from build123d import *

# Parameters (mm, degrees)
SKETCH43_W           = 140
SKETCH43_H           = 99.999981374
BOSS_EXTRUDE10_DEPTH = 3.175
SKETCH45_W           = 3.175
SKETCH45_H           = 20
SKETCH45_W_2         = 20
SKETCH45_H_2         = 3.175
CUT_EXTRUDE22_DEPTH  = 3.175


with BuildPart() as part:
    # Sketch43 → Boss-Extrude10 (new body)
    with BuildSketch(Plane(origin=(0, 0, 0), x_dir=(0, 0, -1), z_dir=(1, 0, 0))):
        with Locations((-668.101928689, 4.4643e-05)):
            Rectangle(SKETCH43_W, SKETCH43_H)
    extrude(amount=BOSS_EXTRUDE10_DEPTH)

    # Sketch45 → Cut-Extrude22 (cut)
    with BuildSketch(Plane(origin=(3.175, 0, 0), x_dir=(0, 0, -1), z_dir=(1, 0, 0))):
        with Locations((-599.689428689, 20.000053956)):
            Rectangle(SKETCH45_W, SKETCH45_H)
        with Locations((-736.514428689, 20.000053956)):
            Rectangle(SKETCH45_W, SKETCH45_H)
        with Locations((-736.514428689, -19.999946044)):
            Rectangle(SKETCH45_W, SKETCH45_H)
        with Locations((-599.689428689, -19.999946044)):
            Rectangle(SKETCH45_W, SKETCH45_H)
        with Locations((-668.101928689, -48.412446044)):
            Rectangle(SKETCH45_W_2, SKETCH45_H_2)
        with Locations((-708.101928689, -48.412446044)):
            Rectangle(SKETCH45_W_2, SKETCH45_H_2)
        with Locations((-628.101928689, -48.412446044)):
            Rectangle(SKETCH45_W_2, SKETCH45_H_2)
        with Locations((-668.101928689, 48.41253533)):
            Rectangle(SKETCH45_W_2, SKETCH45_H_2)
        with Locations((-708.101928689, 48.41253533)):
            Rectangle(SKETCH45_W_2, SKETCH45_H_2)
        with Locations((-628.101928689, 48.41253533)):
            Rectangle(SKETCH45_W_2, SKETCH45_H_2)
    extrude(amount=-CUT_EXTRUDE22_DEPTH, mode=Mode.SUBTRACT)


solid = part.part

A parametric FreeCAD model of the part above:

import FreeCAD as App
import Part
import Sketcher


def add_polygon(sketch, points):
    """Adds a closed chain of lines whose ends are joined by coincident constraints."""
    first, n = sketch.GeometryCount, len(points)
    for a, b in zip(points, points[1:] + points[:1]):
        sketch.addGeometry(Part.LineSegment(App.Vector(*a, 0), App.Vector(*b, 0)), False)
    for i in range(n):
        sketch.addConstraint(Sketcher.Constraint("Coincident", first + i, 2, first + (i + 1) % n, 1))

doc = App.newDocument("Part")
body = doc.addObject("PartDesign::Body", "Body")

# Sketch on YZ plane
sketch1 = body.newObject("Sketcher::SketchObject", "Sketch")
sketch1.AttachmentSupport = (doc.getObject("YZ_Plane"), [""])
sketch1.MapMode = "FlatFace"
add_polygon(sketch1, [(50.000035, 738.101929), (-49.999946, 738.101929), (-49.999946, 598.101929), (50.000035, 598.101929)])  # lines 0-3
sketch1.addConstraint([
    Sketcher.Constraint("Horizontal", 0),
    Sketcher.Constraint("Vertical", 1),
    Sketcher.Constraint("Horizontal", 2),
    Sketcher.Constraint("Vertical", 3),
    Sketcher.Constraint("DistanceY", 1, 2, 1, 1, 140.0),
    Sketcher.Constraint("DistanceX", 0, 2, 0, 1, 99.999981),
    Sketcher.Constraint("DistanceY", -1, 1, 0, 2, 738.101929),
    Sketcher.Constraint("DistanceX", 0, 2, -1, 1, 49.999946),
])
pad1 = body.newObject("PartDesign::Pad", "Pad")
pad1.Profile = sketch1
pad1.Length = 3.175

# Sketch on YZ plane
sketch2 = body.newObject("Sketcher::SketchObject", "Sketch001")
sketch2.AttachmentSupport = (doc.getObject("YZ_Plane"), [""])
sketch2.MapMode = "FlatFace"
sketch2.AttachmentOffset = App.Placement(App.Vector(0, 0, 3.175), App.Rotation())
add_polygon(sketch2, [(30.000054, 601.276929), (10.000054, 601.276929), (10.000054, 598.101929), (30.000054, 598.101929)])  # lines 0-3
add_polygon(sketch2, [(30.000054, 738.101929), (10.000054, 738.101929), (10.000054, 734.926929), (30.000054, 734.926929)])  # lines 4-7
add_polygon(sketch2, [(-9.999946, 738.101929), (-29.999946, 738.101929), (-29.999946, 734.926929), (-9.999946, 734.926929)])  # lines 8-11
add_polygon(sketch2, [(-9.999946, 601.276929), (-29.999946, 601.276929), (-29.999946, 598.101929), (-9.999946, 598.101929)])  # lines 12-15
add_polygon(sketch2, [(-46.824946, 678.101929), (-49.999946, 678.101929), (-49.999946, 658.101929), (-46.824946, 658.101929)])  # lines 16-19
add_polygon(sketch2, [(-46.824946, 718.101929), (-49.999946, 718.101929), (-49.999946, 698.101929), (-46.824946, 698.101929)])  # lines 20-23
add_polygon(sketch2, [(-46.824946, 638.101929), (-49.999946, 638.101929), (-49.999946, 618.101929), (-46.824946, 618.101929)])  # lines 24-27
add_polygon(sketch2, [(50.000035, 678.101929), (46.825035, 678.101929), (46.825035, 658.101929), (50.000035, 658.101929)])  # lines 28-31
add_polygon(sketch2, [(50.000035, 718.101929), (46.825035, 718.101929), (46.825035, 698.101929), (50.000035, 698.101929)])  # lines 32-35
add_polygon(sketch2, [(50.000035, 638.101929), (46.825035, 638.101929), (46.825035, 618.101929), (50.000035, 618.101929)])  # lines 36-39
sketch2.addConstraint([
    Sketcher.Constraint("Horizontal", 0),
    Sketcher.Constraint("Vertical", 1),
    Sketcher.Constraint("Horizontal", 2),
    Sketcher.Constraint("Vertical", 3),
    Sketcher.Constraint("Horizontal", 4),
    Sketcher.Constraint("Vertical", 5),
    Sketcher.Constraint("Horizontal", 6),
    Sketcher.Constraint("Vertical", 7),
    Sketcher.Constraint("Horizontal", 8),
    Sketcher.Constraint("Vertical", 9),
    Sketcher.Constraint("Horizontal", 10),
    Sketcher.Constraint("Vertical", 11),
    Sketcher.Constraint("Horizontal", 12),
    Sketcher.Constraint("Vertical", 13),
    Sketcher.Constraint("Horizontal", 14),
    Sketcher.Constraint("Vertical", 15),
    Sketcher.Constraint("Horizontal", 16),
    Sketcher.Constraint("Vertical", 17),
    Sketcher.Constraint("Horizontal", 18),
    Sketcher.Constraint("Vertical", 19),
    Sketcher.Constraint("Horizontal", 20),
    Sketcher.Constraint("Vertical", 21),
    Sketcher.Constraint("Horizontal", 22),
    Sketcher.Constraint("Vertical", 23),
    Sketcher.Constraint("Horizontal", 24),
    Sketcher.Constraint("Vertical", 25),
    Sketcher.Constraint("Horizontal", 26),
    Sketcher.Constraint("Vertical", 27),
    Sketcher.Constraint("Horizontal", 28),
    Sketcher.Constraint("Vertical", 29),
    Sketcher.Constraint("Horizontal", 30),
    Sketcher.Constraint("Vertical", 31),
    Sketcher.Constraint("Horizontal", 32),
    Sketcher.Constraint("Vertical", 33),
    Sketcher.Constraint("Horizontal", 34),
    Sketcher.Constraint("Vertical", 35),
    Sketcher.Constraint("Horizontal", 36),
    Sketcher.Constraint("Vertical", 37),
    Sketcher.Constraint("Horizontal", 38),
    Sketcher.Constraint("Vertical", 39),
    Sketcher.Constraint("Horizontal", 7, 2, 8, 2),
    Sketcher.Constraint("Horizontal", 6, 2, 9, 2),
    Sketcher.Constraint("Horizontal", 3, 2, 12, 2),
    Sketcher.Constraint("Horizontal", 2, 2, 13, 2),
    Sketcher.Constraint("Horizontal", 19, 2, 28, 2),
    Sketcher.Constraint("Horizontal", 18, 2, 29, 2),
    Sketcher.Constraint("Horizontal", 23, 2, 32, 2),
    Sketcher.Constraint("Horizontal", 22, 2, 33, 2),
    Sketcher.Constraint("Horizontal", 27, 2, 36, 2),
    Sketcher.Constraint("Horizontal", 26, 2, 37, 2),
    Sketcher.Constraint("Vertical", 1, 2, 4, 2),
    Sketcher.Constraint("Vertical", 3, 2, 6, 2),
    Sketcher.Constraint("Vertical", 9, 2, 12, 2),
    Sketcher.Constraint("Vertical", 11, 2, 14, 2),
    Sketcher.Constraint("Vertical", 17, 2, 20, 2),
    Sketcher.Constraint("Vertical", 19, 2, 22, 2),
    Sketcher.Constraint("Vertical", 21, 2, 24, 2),
    Sketcher.Constraint("Vertical", 23, 2, 26, 2),
    Sketcher.Constraint("Vertical", 29, 2, 32, 2),
    Sketcher.Constraint("Vertical", 31, 2, 34, 2),
    Sketcher.Constraint("Vertical", 33, 2, 36, 2),
    Sketcher.Constraint("Vertical", 35, 2, 38, 2),
    Sketcher.Constraint("Equal", 6, 8),
    Sketcher.Constraint("Equal", 26, 28),
    Sketcher.Constraint("Equal", 38, 1),
    Sketcher.Constraint("Equal", 3, 5),
    Sketcher.Constraint("Equal", 14, 17),
    Sketcher.Constraint("Equal", 19, 21),
    Sketcher.Constraint("Equal", 23, 25),
    Sketcher.Constraint("DistanceX", 0, 2, 0, 1, 20.0),
    Sketcher.Constraint("DistanceY", 1, 2, 4, 2, 140.0),
    Sketcher.Constraint("DistanceX", 8, 2, 4, 2, 40.0),
    Sketcher.Constraint("DistanceX", 16, 2, 9, 2, 20.0),
    Sketcher.Constraint("DistanceY", 16, 2, 8, 2, 60.0),
    Sketcher.Constraint("DistanceY", 20, 2, 8, 2, 20.0),
    Sketcher.Constraint("DistanceY", 24, 2, 17, 2, 20.0),
    Sketcher.Constraint("DistanceX", 16, 2, 16, 1, 3.175),
    Sketcher.Constraint("DistanceY", -1, 1, 0, 2, 601.276929),
    Sketcher.Constraint("DistanceX", 6, 2, 28, 2, 16.824981),
    Sketcher.Constraint("DistanceX", -1, 1, 0, 2, 10.000054),
])
pocket1 = body.newObject("PartDesign::Pocket", "Pocket")
pocket1.Profile = sketch2
pocket1.Length = 3.175

doc.recompute()
